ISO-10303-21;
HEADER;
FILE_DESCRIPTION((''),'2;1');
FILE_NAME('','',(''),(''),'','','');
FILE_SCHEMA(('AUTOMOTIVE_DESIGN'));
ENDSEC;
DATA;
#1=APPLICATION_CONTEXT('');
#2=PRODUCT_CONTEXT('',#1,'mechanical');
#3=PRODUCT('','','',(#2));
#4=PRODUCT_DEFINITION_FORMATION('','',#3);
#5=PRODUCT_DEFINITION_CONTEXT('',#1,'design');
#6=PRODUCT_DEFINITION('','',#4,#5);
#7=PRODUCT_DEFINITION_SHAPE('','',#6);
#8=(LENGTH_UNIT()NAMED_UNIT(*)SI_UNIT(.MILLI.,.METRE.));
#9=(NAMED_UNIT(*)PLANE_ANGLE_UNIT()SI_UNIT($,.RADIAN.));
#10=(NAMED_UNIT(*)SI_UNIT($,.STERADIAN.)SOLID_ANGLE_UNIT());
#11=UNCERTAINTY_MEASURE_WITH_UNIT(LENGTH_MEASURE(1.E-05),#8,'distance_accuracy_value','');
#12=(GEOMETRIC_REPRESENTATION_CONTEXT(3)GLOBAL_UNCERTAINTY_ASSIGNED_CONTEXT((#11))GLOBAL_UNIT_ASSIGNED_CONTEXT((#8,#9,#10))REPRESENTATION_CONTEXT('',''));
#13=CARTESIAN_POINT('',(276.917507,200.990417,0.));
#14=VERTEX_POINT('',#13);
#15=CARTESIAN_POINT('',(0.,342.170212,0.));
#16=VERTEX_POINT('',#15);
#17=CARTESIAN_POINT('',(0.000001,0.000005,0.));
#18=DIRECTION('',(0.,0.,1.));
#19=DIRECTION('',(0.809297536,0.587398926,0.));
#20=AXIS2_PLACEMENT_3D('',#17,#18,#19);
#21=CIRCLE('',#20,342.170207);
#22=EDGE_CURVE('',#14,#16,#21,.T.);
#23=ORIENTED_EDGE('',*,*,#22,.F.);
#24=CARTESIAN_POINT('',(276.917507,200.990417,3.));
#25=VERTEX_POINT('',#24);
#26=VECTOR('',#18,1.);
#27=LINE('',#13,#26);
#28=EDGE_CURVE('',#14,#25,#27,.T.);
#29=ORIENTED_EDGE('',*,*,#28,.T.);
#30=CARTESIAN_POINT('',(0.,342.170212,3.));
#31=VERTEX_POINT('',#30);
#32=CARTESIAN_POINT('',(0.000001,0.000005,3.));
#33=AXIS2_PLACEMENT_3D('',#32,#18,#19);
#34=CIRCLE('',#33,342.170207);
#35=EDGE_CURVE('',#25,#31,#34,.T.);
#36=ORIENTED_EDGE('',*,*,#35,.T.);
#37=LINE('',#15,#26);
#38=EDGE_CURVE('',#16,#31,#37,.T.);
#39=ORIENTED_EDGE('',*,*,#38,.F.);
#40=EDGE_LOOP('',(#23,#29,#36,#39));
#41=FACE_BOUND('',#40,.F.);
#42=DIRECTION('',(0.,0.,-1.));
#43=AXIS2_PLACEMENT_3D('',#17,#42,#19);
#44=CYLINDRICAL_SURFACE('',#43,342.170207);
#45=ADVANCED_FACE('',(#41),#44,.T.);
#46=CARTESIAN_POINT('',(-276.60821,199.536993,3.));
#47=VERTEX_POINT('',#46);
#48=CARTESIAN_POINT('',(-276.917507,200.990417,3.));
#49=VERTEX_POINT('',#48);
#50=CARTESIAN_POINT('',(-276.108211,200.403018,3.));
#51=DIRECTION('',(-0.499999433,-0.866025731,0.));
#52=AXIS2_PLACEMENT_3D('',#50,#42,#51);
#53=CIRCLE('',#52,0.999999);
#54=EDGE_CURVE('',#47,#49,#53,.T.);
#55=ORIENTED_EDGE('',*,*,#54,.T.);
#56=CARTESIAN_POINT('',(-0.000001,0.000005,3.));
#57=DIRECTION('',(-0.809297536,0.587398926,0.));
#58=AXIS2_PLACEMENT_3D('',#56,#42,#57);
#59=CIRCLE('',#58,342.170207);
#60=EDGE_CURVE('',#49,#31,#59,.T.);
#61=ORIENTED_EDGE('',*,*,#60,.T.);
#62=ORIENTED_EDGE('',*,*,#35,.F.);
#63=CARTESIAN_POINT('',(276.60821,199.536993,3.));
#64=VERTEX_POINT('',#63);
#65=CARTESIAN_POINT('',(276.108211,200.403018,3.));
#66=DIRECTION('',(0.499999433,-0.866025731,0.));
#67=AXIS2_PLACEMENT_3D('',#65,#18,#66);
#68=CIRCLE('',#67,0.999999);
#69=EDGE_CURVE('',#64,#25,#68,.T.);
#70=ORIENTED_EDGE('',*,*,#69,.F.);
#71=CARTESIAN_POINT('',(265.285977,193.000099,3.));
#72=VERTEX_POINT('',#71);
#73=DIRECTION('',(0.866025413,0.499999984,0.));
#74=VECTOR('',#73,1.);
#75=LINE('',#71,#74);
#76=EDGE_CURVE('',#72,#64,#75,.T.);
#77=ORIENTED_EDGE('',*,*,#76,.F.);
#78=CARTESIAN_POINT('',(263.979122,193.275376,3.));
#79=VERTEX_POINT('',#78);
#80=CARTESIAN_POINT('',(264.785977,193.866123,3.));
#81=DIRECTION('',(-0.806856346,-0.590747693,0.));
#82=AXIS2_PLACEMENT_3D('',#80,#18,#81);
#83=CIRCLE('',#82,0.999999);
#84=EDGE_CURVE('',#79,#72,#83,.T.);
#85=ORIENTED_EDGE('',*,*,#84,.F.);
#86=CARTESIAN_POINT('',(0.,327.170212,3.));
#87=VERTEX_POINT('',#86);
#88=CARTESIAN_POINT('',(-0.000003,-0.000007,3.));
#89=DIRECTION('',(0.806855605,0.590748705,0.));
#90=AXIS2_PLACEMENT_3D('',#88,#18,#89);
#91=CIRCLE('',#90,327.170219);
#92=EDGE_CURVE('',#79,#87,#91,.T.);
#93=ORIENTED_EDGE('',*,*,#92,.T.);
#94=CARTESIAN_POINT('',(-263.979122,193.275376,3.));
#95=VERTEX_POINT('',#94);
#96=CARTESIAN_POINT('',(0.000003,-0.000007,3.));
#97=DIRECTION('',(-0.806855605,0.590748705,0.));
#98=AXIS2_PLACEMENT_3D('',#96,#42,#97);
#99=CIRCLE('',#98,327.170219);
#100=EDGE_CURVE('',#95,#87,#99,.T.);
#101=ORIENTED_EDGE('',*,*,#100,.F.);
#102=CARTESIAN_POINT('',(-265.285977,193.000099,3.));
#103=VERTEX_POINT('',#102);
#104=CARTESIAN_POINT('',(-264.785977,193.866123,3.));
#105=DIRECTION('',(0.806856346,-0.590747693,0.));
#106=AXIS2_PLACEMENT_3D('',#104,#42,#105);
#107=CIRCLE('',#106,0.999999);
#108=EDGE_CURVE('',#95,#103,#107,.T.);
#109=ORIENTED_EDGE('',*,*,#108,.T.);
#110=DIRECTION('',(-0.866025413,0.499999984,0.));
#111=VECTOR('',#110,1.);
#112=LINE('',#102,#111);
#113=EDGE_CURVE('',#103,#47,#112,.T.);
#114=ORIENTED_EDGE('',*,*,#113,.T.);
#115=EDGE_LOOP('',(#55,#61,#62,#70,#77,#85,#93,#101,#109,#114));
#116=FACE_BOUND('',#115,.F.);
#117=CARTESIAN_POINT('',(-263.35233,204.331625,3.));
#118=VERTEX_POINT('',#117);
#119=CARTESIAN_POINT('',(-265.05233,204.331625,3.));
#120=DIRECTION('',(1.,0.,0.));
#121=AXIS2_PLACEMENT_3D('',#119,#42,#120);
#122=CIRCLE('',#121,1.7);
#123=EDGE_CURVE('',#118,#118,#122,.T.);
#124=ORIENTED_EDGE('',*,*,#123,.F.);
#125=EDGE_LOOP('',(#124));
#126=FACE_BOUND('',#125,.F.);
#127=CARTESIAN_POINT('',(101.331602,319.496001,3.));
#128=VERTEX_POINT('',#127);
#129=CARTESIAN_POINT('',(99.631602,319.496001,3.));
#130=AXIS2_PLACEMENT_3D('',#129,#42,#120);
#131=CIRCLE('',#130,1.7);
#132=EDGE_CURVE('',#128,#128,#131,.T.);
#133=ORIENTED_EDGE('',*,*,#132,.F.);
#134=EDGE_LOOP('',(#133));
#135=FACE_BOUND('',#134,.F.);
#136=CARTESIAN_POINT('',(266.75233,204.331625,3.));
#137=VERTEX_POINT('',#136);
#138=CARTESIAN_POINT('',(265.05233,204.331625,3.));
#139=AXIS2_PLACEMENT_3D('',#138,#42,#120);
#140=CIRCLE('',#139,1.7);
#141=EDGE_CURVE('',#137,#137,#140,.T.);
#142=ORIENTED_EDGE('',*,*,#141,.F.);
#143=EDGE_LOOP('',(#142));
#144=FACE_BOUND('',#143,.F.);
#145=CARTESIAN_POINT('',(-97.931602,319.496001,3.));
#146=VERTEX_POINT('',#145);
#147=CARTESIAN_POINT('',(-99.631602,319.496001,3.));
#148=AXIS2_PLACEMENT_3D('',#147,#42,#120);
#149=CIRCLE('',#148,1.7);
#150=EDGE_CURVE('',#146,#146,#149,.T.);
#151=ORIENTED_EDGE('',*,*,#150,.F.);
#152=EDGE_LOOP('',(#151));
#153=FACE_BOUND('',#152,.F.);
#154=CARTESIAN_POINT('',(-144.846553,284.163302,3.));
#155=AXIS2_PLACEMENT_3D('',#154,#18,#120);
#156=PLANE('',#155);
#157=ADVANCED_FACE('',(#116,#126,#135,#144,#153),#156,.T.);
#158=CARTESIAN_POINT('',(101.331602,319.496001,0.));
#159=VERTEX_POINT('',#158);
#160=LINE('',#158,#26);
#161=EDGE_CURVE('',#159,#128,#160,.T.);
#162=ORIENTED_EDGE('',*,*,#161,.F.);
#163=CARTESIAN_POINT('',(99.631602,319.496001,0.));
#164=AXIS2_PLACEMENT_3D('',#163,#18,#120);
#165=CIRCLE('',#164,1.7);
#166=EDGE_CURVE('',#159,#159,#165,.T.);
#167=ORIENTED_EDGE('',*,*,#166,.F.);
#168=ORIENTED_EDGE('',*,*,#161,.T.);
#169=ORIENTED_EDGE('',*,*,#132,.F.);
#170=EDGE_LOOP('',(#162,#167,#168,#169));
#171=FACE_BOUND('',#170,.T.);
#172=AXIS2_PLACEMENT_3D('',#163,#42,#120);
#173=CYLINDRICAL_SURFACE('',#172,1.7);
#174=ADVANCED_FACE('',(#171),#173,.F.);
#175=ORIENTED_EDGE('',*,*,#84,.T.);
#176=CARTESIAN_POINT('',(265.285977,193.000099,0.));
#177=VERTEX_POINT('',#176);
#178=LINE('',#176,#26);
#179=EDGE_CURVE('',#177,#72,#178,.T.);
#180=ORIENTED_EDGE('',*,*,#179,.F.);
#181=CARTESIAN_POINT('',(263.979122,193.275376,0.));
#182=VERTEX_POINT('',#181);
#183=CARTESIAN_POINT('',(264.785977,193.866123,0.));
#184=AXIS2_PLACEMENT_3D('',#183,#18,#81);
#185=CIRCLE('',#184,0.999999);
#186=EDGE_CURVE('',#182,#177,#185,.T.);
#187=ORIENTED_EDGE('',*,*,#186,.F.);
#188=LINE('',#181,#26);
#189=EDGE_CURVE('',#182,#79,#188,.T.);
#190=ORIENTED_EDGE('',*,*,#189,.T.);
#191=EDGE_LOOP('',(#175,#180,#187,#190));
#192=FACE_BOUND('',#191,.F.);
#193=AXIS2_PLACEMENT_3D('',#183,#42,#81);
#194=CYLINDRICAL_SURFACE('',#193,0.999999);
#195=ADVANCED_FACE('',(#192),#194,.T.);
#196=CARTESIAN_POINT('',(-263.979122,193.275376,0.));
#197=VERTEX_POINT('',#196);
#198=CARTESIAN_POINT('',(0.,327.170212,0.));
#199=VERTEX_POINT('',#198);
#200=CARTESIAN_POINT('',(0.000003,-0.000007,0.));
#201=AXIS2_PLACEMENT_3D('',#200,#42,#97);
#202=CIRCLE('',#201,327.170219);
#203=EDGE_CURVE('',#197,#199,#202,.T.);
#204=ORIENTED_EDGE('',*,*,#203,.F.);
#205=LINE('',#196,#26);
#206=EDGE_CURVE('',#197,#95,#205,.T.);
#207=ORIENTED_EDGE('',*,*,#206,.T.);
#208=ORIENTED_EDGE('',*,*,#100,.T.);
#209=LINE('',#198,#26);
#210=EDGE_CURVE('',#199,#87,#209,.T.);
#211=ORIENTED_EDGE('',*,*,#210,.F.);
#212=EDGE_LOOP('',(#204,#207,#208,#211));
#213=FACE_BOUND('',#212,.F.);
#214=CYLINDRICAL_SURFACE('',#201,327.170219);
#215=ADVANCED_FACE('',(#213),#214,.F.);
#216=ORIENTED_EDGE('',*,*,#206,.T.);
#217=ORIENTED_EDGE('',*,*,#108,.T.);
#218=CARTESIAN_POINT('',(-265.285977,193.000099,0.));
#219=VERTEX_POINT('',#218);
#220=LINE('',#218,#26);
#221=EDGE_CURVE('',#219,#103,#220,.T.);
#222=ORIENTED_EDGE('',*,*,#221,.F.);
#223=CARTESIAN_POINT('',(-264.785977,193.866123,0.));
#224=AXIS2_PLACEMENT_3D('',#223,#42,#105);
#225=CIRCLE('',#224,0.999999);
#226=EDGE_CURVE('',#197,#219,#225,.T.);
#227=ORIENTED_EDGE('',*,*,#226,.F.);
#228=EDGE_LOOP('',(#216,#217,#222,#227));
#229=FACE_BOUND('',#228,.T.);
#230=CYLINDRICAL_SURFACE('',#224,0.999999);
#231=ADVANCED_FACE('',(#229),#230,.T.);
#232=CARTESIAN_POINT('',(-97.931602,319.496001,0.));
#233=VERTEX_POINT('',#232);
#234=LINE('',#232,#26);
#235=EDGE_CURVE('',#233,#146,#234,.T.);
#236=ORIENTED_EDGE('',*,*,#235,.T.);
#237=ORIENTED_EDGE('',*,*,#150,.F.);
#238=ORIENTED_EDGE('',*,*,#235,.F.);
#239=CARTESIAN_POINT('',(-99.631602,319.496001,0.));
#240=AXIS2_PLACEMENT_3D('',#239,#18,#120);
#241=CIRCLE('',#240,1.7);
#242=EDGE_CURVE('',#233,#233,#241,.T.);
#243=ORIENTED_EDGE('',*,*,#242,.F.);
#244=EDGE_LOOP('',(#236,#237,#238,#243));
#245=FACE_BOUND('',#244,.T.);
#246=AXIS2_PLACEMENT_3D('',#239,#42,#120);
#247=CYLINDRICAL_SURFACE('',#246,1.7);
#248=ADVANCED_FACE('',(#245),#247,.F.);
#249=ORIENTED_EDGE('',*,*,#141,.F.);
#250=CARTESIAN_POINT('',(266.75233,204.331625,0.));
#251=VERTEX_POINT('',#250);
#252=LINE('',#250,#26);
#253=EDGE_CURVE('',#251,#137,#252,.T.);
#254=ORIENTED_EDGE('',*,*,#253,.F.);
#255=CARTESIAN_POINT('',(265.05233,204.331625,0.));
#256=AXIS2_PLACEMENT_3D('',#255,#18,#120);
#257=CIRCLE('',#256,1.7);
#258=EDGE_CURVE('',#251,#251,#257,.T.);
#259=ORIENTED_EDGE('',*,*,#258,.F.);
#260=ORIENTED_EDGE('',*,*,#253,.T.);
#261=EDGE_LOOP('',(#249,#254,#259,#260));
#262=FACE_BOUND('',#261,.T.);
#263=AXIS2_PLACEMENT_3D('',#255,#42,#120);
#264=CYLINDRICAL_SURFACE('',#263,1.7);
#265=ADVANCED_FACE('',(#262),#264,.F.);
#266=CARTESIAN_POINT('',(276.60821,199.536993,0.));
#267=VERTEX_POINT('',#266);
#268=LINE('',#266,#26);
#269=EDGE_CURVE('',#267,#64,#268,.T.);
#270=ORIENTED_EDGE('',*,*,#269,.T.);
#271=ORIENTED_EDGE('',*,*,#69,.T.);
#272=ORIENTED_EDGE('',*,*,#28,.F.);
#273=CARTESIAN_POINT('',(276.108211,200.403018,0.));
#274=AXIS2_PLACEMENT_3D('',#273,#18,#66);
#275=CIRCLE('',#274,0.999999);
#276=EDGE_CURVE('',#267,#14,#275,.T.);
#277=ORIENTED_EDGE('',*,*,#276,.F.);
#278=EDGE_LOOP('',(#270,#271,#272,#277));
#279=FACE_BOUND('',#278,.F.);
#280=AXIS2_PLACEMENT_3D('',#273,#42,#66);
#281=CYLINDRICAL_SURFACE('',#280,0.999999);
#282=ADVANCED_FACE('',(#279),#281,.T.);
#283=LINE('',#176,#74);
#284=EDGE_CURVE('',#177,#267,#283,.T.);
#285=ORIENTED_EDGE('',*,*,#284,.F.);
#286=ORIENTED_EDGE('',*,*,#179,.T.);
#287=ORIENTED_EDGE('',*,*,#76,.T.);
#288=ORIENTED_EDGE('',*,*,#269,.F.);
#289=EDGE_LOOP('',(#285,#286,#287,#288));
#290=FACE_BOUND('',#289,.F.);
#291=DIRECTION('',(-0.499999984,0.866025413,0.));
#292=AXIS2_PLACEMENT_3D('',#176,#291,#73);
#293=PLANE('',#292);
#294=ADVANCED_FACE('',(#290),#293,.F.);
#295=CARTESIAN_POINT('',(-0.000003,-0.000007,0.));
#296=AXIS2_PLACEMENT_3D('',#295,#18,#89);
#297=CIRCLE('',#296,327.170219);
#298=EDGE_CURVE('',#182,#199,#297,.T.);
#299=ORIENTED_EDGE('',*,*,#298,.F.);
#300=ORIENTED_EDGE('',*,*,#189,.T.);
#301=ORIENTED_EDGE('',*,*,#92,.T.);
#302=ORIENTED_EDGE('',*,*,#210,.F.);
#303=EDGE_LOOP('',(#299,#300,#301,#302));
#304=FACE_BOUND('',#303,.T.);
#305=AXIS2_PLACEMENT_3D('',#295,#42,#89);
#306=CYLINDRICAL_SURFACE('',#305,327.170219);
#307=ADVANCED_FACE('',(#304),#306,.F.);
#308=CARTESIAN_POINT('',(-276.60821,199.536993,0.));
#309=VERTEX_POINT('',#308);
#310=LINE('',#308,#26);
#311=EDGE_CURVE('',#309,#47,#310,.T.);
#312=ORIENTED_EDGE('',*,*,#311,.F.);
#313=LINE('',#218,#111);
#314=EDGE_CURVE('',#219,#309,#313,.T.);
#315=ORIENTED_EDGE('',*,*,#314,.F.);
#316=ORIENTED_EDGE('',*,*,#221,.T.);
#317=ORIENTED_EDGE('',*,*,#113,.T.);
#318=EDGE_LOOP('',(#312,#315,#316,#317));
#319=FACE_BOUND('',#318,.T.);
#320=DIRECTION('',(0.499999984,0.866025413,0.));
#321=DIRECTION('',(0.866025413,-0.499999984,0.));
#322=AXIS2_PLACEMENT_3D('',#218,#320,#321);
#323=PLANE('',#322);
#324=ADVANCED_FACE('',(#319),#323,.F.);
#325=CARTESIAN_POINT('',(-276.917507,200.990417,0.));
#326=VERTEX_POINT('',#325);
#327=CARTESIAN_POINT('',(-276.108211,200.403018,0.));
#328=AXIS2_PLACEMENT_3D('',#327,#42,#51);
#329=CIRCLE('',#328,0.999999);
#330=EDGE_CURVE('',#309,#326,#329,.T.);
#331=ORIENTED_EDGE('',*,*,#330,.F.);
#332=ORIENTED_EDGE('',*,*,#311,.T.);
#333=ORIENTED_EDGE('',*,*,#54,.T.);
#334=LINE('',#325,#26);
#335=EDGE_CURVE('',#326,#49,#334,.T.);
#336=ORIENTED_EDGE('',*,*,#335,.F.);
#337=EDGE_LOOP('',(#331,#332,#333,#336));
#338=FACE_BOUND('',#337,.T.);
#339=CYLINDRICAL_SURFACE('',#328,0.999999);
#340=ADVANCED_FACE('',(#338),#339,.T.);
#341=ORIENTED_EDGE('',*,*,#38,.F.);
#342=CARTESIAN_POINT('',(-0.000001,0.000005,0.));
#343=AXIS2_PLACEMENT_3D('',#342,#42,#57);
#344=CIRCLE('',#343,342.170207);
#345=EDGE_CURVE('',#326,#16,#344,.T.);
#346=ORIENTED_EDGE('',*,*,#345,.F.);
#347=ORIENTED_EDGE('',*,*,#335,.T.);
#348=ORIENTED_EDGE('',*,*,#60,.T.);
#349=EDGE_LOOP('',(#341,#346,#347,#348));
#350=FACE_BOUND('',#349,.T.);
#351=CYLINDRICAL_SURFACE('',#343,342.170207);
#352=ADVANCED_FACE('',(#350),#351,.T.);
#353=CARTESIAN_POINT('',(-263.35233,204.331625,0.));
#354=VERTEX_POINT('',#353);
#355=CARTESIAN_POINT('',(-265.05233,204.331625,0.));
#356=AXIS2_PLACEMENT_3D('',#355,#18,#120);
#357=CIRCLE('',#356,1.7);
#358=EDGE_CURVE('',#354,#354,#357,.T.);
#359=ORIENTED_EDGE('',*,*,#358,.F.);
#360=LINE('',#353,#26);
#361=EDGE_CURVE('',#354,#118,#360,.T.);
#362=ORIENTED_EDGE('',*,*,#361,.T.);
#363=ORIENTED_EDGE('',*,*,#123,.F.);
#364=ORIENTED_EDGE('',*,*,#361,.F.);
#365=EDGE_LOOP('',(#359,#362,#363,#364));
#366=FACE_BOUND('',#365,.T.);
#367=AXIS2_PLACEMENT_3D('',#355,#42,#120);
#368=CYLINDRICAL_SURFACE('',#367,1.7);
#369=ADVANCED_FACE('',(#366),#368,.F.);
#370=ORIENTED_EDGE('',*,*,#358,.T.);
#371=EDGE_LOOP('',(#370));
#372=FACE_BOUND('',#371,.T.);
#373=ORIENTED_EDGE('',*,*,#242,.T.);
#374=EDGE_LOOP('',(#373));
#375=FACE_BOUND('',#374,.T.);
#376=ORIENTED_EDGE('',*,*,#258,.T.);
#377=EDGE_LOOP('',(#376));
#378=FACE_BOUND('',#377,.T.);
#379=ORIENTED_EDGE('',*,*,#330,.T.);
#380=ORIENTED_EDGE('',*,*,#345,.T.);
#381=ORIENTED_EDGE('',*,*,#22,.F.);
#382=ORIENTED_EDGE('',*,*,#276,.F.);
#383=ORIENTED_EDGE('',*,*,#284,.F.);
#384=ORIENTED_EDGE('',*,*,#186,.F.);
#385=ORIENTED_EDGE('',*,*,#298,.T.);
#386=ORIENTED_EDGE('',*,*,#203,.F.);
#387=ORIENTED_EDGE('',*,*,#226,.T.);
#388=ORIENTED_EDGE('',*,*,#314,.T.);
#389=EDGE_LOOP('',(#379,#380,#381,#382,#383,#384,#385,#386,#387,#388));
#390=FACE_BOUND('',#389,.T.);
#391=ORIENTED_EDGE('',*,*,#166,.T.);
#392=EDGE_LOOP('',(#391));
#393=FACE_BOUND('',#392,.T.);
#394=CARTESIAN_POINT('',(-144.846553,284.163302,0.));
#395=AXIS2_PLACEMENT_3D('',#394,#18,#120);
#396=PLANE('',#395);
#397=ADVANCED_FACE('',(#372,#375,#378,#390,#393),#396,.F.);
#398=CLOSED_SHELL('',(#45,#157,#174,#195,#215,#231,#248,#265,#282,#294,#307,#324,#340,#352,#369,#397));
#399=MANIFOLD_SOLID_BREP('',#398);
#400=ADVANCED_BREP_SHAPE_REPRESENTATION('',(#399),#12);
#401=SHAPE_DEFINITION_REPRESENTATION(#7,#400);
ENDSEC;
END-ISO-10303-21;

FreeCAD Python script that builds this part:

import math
import FreeCAD as App
import Part
import Sketcher

V = App.Vector
Q = App.Units.Quantity

doc = App.newDocument("Part")
body = doc.addObject("PartDesign::Body", "Body")

sketch1 = body.newObject("Sketcher::SketchObject", "Sketch")
sketch1.AttachmentSupport = (doc.getObject("XY_Plane"), [""])
sketch1.MapMode = "FlatFace"
sketch1.addGeometry([
    Part.ArcOfCircle(Part.Circle(V(0, 0, 0), V(0, 0, 1), 342.2), math.radians(36), math.radians(90)),
    Part.LineSegment(V(0, 342.2, 0), V(0, 327.2, 0)),
    Part.ArcOfCircle(Part.Circle(V(0, 0, 0), V(0, 0, 1), 327.2), math.radians(36), math.radians(90)),
    Part.ArcOfCircle(Part.Circle(V(264.8, 193.9, 0), V(0, 0, 1), 1), math.radians(-144), math.radians(-60)),
    Part.LineSegment(V(265.3, 193, 0), V(276.6, 199.5, 0)),
    Part.ArcOfCircle(Part.Circle(V(276.1, 200.4, 0), V(0, 0, 1), 1), math.radians(-60), math.radians(36)),
], False)
sketch1.addConstraint([
    Sketcher.Constraint("Coincident", 0, 2, 1, 1),
    Sketcher.Constraint("Coincident", 1, 2, 2, 2),
    Sketcher.Constraint("Tangent", 2, 1, 3, 1),
    Sketcher.Constraint("Tangent", 3, 2, 4, 1),
    Sketcher.Constraint("Tangent", 4, 2, 5, 1),
    Sketcher.Constraint("Tangent", 5, 2, 0, 1),
    Sketcher.Constraint("Vertical", 1),
    Sketcher.Constraint("Coincident", 0, 3, -1, 1),
    Sketcher.Constraint("Coincident", 2, 3, -1, 1),
    Sketcher.Constraint("Equal", 3, 5),
    Sketcher.Constraint("PointOnObject", 0, 2, -2),
    Sketcher.Constraint("Radius", 3, Q("0.999999 mm")),
    Sketcher.Constraint("DistanceY", 1, 2, 1, 1, Q("15 mm")),
    Sketcher.Constraint("Angle", 4, Q("29.999999 deg")),
    Sketcher.Constraint("Radius", 2, Q("327.170219 mm")),
    Sketcher.Constraint("DistanceY", -1, 1, 3, 2, Q("193.000099 mm")),
])
pad1 = body.newObject("PartDesign::Pad", "Pad")
pad1.Profile = sketch1
pad1.Length = 3
doc.recompute()

mirrored = body.newObject("PartDesign::Mirrored", "Mirrored")
mirrored.Originals = [pad1]
mirrored.MirrorPlane = (doc.getObject("YZ_Plane"), [""])
body.Tip = mirrored

sketch2 = body.newObject("Sketcher::SketchObject", "Sketch001")
sketch2.AttachmentSupport = (doc.getObject("XY_Plane"), [""])
sketch2.MapMode = "FlatFace"
sketch2.addGeometry([
    Part.Circle(V(99.6, 319.5, 0), V(0, 0, 1), 1.7),
    Part.Circle(V(265.1, 204.3, 0), V(0, 0, 1), 1.7),
    Part.Circle(V(-99.6, 319.5, 0), V(0, 0, 1), 1.7),
    Part.Circle(V(-265.1, 204.3, 0), V(0, 0, 1), 1.7),
], False)
sketch2.addConstraint([
    Sketcher.Constraint("Equal", 0, 1),
    Sketcher.Constraint("Equal", 1, 2),
    Sketcher.Constraint("Equal", 2, 3),
    Sketcher.Constraint("Symmetric", 0, 3, 2, 3, -2),
    Sketcher.Constraint("Symmetric", 1, 3, 3, 3, -2),
    Sketcher.Constraint("Diameter", 0, Q("3.4 mm")),
    Sketcher.Constraint("DistanceY", -1, 1, 0, 3, Q("319.496001 mm")),
    Sketcher.Constraint("DistanceX", -1, 1, 0, 3, Q("99.631602 mm")),
    Sketcher.Constraint("DistanceX", -1, 1, 1, 3, Q("265.05233 mm")),
    Sketcher.Constraint("DistanceY", -1, 1, 1, 3, Q("204.331625 mm")),
])
pocket1 = body.newObject("PartDesign::Pocket", "Pocket")
pocket1.Profile = sketch2
pocket1.Type = "ThroughAll"
pocket1.Midplane = True

doc.recompute()
